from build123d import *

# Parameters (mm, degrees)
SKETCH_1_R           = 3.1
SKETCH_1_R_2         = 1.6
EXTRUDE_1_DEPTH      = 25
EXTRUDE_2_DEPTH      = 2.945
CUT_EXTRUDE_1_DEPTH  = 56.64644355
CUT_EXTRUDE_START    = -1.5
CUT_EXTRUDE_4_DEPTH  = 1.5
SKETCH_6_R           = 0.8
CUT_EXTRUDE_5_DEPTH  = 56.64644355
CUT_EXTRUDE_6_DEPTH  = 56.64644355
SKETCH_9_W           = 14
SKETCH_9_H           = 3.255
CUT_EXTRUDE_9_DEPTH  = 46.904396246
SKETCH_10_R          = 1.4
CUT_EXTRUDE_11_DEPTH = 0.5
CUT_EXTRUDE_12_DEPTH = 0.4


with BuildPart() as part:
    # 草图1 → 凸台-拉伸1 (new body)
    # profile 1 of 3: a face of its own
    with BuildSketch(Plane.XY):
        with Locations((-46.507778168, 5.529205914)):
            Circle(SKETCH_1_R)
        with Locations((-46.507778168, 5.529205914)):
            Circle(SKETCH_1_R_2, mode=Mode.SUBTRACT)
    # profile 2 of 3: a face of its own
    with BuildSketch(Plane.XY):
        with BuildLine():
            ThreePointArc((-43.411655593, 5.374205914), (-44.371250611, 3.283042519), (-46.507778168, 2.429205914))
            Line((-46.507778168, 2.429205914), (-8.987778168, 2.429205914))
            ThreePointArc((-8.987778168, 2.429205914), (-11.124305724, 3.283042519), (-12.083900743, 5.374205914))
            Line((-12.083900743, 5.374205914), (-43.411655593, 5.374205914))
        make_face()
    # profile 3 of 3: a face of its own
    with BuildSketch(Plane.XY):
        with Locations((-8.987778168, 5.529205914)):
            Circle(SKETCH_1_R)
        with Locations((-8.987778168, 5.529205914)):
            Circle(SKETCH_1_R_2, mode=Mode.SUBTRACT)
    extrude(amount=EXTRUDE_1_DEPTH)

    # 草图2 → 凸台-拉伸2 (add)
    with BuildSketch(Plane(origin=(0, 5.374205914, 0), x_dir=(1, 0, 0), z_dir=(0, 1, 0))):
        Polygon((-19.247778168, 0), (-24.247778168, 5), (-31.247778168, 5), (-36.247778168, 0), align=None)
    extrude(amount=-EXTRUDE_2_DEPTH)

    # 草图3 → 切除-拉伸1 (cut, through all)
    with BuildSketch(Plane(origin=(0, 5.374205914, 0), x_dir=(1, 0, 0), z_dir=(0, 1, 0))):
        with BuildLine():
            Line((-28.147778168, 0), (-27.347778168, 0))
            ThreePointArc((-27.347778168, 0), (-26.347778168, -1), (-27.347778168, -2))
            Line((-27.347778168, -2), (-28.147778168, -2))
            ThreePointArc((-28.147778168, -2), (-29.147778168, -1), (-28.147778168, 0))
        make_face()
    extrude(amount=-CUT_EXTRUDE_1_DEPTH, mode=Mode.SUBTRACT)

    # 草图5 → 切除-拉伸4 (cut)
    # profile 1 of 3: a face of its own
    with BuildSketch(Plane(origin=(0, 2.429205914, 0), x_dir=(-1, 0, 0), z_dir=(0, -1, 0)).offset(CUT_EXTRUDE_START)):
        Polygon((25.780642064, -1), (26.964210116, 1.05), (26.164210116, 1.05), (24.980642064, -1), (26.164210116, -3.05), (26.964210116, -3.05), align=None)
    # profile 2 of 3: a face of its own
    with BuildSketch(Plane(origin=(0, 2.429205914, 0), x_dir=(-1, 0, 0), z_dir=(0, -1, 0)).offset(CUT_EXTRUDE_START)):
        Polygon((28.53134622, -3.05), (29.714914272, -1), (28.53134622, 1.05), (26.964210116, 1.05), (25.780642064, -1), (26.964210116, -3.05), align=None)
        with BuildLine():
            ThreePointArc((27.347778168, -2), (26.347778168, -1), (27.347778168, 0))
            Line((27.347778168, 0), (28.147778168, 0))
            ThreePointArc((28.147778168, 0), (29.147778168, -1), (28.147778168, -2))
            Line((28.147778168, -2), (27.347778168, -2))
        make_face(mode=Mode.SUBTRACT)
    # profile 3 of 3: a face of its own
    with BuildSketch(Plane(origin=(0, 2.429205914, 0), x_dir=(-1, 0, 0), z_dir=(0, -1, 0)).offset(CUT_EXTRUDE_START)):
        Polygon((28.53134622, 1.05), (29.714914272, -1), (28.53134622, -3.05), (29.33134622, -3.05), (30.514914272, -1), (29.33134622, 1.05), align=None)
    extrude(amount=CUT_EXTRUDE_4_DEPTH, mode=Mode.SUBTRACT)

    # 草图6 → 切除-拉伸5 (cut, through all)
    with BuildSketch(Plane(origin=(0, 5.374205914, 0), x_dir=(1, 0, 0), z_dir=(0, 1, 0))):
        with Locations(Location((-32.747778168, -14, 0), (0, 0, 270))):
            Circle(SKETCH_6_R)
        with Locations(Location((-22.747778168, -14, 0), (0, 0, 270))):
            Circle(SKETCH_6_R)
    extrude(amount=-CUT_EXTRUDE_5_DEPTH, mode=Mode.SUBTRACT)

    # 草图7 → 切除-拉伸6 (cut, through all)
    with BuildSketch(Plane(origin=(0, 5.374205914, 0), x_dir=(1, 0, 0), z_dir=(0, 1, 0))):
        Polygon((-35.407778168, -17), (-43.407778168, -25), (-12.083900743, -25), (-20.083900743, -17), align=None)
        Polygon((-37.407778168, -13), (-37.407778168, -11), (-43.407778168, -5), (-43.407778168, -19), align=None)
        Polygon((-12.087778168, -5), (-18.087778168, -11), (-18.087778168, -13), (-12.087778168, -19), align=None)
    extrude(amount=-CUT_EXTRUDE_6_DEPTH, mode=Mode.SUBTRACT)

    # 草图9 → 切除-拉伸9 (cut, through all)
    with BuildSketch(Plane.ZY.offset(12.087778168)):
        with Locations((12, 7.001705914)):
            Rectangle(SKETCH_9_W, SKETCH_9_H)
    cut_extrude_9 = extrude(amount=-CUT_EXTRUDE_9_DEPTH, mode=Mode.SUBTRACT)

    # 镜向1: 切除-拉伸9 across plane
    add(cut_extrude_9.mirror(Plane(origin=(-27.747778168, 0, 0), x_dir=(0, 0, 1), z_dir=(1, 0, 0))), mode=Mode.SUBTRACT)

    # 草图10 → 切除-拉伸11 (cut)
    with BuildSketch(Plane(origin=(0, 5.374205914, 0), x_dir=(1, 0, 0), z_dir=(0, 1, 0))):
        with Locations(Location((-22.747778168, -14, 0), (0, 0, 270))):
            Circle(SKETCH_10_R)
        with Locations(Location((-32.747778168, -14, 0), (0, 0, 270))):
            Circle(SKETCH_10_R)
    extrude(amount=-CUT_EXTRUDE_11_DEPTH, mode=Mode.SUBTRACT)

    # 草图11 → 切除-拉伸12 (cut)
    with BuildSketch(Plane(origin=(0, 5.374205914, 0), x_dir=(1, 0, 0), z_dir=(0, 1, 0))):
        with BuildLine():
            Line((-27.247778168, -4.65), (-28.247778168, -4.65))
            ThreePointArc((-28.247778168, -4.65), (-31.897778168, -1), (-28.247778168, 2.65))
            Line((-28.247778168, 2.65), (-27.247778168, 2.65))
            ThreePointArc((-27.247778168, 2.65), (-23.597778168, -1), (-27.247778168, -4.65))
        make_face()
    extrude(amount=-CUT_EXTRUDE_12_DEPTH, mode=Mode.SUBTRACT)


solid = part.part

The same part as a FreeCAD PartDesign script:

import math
import FreeCAD as App
import Part
import Sketcher
from FreeCAD import Vector
Q = App.Units.Quantity


def add_polygon(sketch, points):
    """Adds a closed chain of lines whose ends are joined by coincident constraints."""
    first, n = sketch.GeometryCount, len(points)
    for a, b in zip(points, points[1:] + points[:1]):
        sketch.addGeometry(Part.LineSegment(App.Vector(*a, 0), App.Vector(*b, 0)), False)
    for i in range(n):
        sketch.addConstraint(Sketcher.Constraint("Coincident", first + i, 2, first + (i + 1) % n, 1))

doc = App.newDocument("Part")
params = doc.addObject("Spreadsheet::Sheet", "Params")
for row, (alias, value) in enumerate([
    ("sketch1_diameter", "3.2 mm"),
    ("sketch1_radius", "3.1 mm"),
    ("sketch1_width", "37.52 mm"),
    ("pad1_length", "25 mm"),
    ("sketch2_width", "7 mm"),
    ("sketch2_width2", "17 mm"),
    ("pad2_length", "2.945 mm"),
    ("sketch3_radius", "1 mm"),
    ("sketch3_width", "0.8 mm"),
    ("sketch4_radius", "1 mm"),
    ("sketch4_width", "0.8 mm"),
    ("pocket2_length", "1.5 mm"),
    ("sketch5_diameter", "1.6 mm"),
    ("sketch6_height", "2 mm"),
    ("sketch6_height2", "14 mm"),
    ("sketch7_height", "14 mm"),
    ("sketch8_diameter", "2.8 mm"),
    ("pocket6_length", "0.5 mm"),
    ("sketch9_width", "1 mm"),
    ("sketch9_radius", "3.65 mm"),
    ("pocket7_length", "0.4 mm"),
], start=1):
    params.set(f"A{row}", alias)
    params.set(f"B{row}", "=" + value)
    params.setAlias(f"B{row}", alias)

body = doc.addObject("PartDesign::Body", "Body")

sketch1 = body.newObject("Sketcher::SketchObject", "Sketch")
sketch1.AttachmentSupport = (doc.getObject("XY_Plane"), [""])
sketch1.MapMode = "FlatFace"
sketch1.addGeometry(Part.LineSegment(Vector(-46.5, 2.4, 0), Vector(-9, 2.4, 0)), False)
sketch1.addGeometry(Part.ArcOfCircle(Part.Circle(Vector(-9, 5.5, 0), Vector(0, 0, 1), 3.1), math.radians(-90), math.radians(183)), False)
sketch1.addGeometry(Part.LineSegment(Vector(-12.1, 5.4, 0), Vector(-43.4, 5.4, 0)), False)
sketch1.addGeometry(Part.ArcOfCircle(Part.Circle(Vector(-46.5, 5.5, 0), Vector(0, 0, 1), 3.1), math.radians(-3), math.radians(270)), False)
sketch1.addGeometry(Part.Circle(Vector(-46.5, 5.5, 0), Vector(0, 0, 1), 1.6), False)
sketch1.addGeometry(Part.Circle(Vector(-9, 5.5, 0), Vector(0, 0, 1), 1.6), False)
sketch1.addConstraint(Sketcher.Constraint("Tangent", 0, 2, 1, 1))
sketch1.addConstraint(Sketcher.Constraint("Coincident", 1, 2, 2, 1))
sketch1.addConstraint(Sketcher.Constraint("Coincident", 2, 2, 3, 1))
sketch1.addConstraint(Sketcher.Constraint("Tangent", 3, 2, 0, 1))
sketch1.addConstraint(Sketcher.Constraint("Horizontal", 0))
sketch1.addConstraint(Sketcher.Constraint("Horizontal", 2))
sketch1.addConstraint(Sketcher.Constraint("Coincident", 4, 3, 3, 3))
sketch1.addConstraint(Sketcher.Constraint("Coincident", 5, 3, 1, 3))
sketch1.addConstraint(Sketcher.Constraint("Equal", 1, 3))
sketch1.addConstraint(Sketcher.Constraint("Equal", 4, 5))
sketch1.addConstraint(Sketcher.Constraint("Diameter", 4, Q("3.2 mm")))
sketch1.addConstraint(Sketcher.Constraint("Radius", 1, Q("3.1 mm")))
sketch1.addConstraint(Sketcher.Constraint("DistanceX", 0, 1, 0, 2, Q("37.52 mm")))
sketch1.addConstraint(Sketcher.Constraint("DistanceY", 1, 2, 1, 3, Q("0.155 mm")))
sketch1.addConstraint(Sketcher.Constraint("DistanceX", 1, 2, -1, 1, Q("12.083901 mm")))
sketch1.addConstraint(Sketcher.Constraint("DistanceY", -1, 1, 1, 3, Q("5.529206 mm")))
sketch1.setExpression("Constraints[10]", "Params.sketch1_diameter")
sketch1.setExpression("Constraints[11]", "Params.sketch1_radius")
sketch1.setExpression("Constraints[12]", "Params.sketch1_width")
pad1 = body.newObject("PartDesign::Pad", "Pad")
pad1.Profile = sketch1
pad1.setExpression("Length", "Params.pad1_length")

sketch2 = body.newObject("Sketcher::SketchObject", "Sketch001")
sketch2.AttachmentSupport = (doc.getObject("XZ_Plane"), [""])
sketch2.MapMode = "FlatFace"
sketch2.AttachmentOffset = App.Placement(Vector(0, 0, -5.374206), App.Rotation())
add_polygon(sketch2, [(-19, 0), (-24, -5), (-31, -5), (-36, 0)])
sketch2.addConstraint(Sketcher.Constraint("Horizontal", 1))
sketch2.addConstraint(Sketcher.Constraint("Horizontal", 3))
sketch2.addConstraint(Sketcher.Constraint("PointOnObject", 2, 2, -1))
sketch2.addConstraint(Sketcher.Constraint("Perpendicular", 0, 2))
sketch2.addConstraint(Sketcher.Constraint("Equal", 0, 2))
sketch2.addConstraint(Sketcher.Constraint("DistanceX", 1, 2, 1, 1, Q("7 mm")))
sketch2.addConstraint(Sketcher.Constraint("DistanceX", 3, 1, 3, 2, Q("17 mm")))
sketch2.addConstraint(Sketcher.Constraint("DistanceX", 0, 2, -1, 1, Q("24.247778 mm")))
sketch2.setExpression("Constraints[9]", "Params.sketch2_width")
sketch2.setExpression("Constraints[10]", "Params.sketch2_width2")
pad2 = body.newObject("PartDesign::Pad", "Pad001")
pad2.Profile = sketch2
pad2.setExpression("Length", "Params.pad2_length")

sketch3 = body.newObject("Sketcher::SketchObject", "Sketch002")
sketch3.AttachmentSupport = (doc.getObject("XZ_Plane"), [""])
sketch3.MapMode = "FlatFace"
sketch3.AttachmentOffset = App.Placement(Vector(0, 0, -5.374206), App.Rotation())
sketch3.addGeometry(Part.LineSegment(Vector(-27.3, 0, 0), Vector(-28.1, 0, 0)), False)
sketch3.addGeometry(Part.ArcOfCircle(Part.Circle(Vector(-28.1, 1, 0), Vector(0, 0, 1), 1), math.radians(90), math.radians(270)), False)
sketch3.addGeometry(Part.LineSegment(Vector(-28.1, 2, 0), Vector(-27.3, 2, 0)), False)
sketch3.addGeometry(Part.ArcOfCircle(Part.Circle(Vector(-27.3, 1, 0), Vector(0, 0, 1), 1), math.radians(-90), math.radians(90)), False)
sketch3.addConstraint(Sketcher.Constraint("Tangent", 0, 2, 1, 2))
sketch3.addConstraint(Sketcher.Constraint("Tangent", 1, 1, 2, 1))
sketch3.addConstraint(Sketcher.Constraint("Tangent", 2, 2, 3, 2))
sketch3.addConstraint(Sketcher.Constraint("Tangent", 3, 1, 0, 1))
sketch3.addConstraint(Sketcher.Constraint("Horizontal", 0))
sketch3.addConstraint(Sketcher.Constraint("Horizontal", 2))
sketch3.addConstraint(Sketcher.Constraint("PointOnObject", 0, 2, -1))
sketch3.addConstraint(Sketcher.Constraint("Radius", 1, Q("1 mm")))
sketch3.addConstraint(Sketcher.Constraint("DistanceX", 0, 2, 0, 1, Q("0.8 mm")))
sketch3.addConstraint(Sketcher.Constraint("DistanceX", 1, 3, -1, 1, Q("28.147778 mm")))
sketch3.setExpression("Constraints[7]", "Params.sketch3_radius")
sketch3.setExpression("Constraints[8]", "Params.sketch3_width")
pocket1 = body.newObject("PartDesign::Pocket", "Pocket")
pocket1.Profile = sketch3
pocket1.Type = "ThroughAll"
pocket1.Reversed = True

sketch4 = body.newObject("Sketcher::SketchObject", "Sketch003")
sketch4.AttachmentSupport = (doc.getObject("XZ_Plane"), [""])
sketch4.MapMode = "FlatFace"
sketch4.AttachmentOffset = App.Placement(Vector(0, 0, -3.929206), App.Rotation())
add_polygon(sketch4, [(-26.2, -1.1), (-25, 1), (-26.2, 3), (-29.3, 3), (-30.5, 1), (-29.3, -1.1)])
sketch4.addGeometry(Part.LineSegment(Vector(-27.3, 0, 0), Vector(-28.1, 0, 0)), False)
sketch4.addGeometry(Part.ArcOfCircle(Part.Circle(Vector(-28.1, 1, 0), Vector(0, 0, 1), 1), math.radians(90), math.radians(270)), False)
sketch4.addGeometry(Part.LineSegment(Vector(-28.1, 2, 0), Vector(-27.3, 2, 0)), False)
sketch4.addGeometry(Part.ArcOfCircle(Part.Circle(Vector(-27.3, 1, 0), Vector(0, 0, 1), 1), math.radians(-90), math.radians(90)), False)
sketch4.addConstraint(Sketcher.Constraint("Tangent", 6, 2, 7, 2))
sketch4.addConstraint(Sketcher.Constraint("Tangent", 7, 1, 8, 1))
sketch4.addConstraint(Sketcher.Constraint("Tangent", 8, 2, 9, 2))
sketch4.addConstraint(Sketcher.Constraint("Tangent", 9, 1, 6, 1))
sketch4.addConstraint(Sketcher.Constraint("Horizontal", 2))
sketch4.addConstraint(Sketcher.Constraint("Horizontal", 5))
sketch4.addConstraint(Sketcher.Constraint("Horizontal", 6))
sketch4.addConstraint(Sketcher.Constraint("Horizontal", 8))
sketch4.addConstraint(Sketcher.Constraint("PointOnObject", 6, 2, -1))
sketch4.addConstraint(Sketcher.Constraint("Parallel", 0, 3))
sketch4.addConstraint(Sketcher.Constraint("Parallel", 1, 4))
sketch4.addConstraint(Sketcher.Constraint("Horizontal", 9, 3, 0, 2))
sketch4.addConstraint(Sketcher.Constraint("Horizontal", 0, 2, 3, 2))
sketch4.addConstraint(Sketcher.Constraint("Vertical", 2, 2, 4, 2))
sketch4.addConstraint(Sketcher.Constraint("Vertical", 1, 2, 5, 2))
sketch4.addConstraint(Sketcher.Constraint("Radius", 7, Q("1 mm")))
sketch4.addConstraint(Sketcher.Constraint("Angle", 0, Q("60 deg")))
sketch4.addConstraint(Sketcher.Constraint("DistanceX", 6, 2, 6, 1, Q("0.8 mm")))
sketch4.addConstraint(Sketcher.Constraint("DistanceY", 4, 2, 2, 2, Q("4.1 mm")))
sketch4.addConstraint(Sketcher.Constraint("DistanceX", 2, 2, 2, 1, Q("3.167136 mm")))
sketch4.addConstraint(Sketcher.Constraint("DistanceX", 7, 3, -1, 1, Q("28.147778 mm")))
sketch4.addConstraint(Sketcher.Constraint("DistanceX", 1, 2, -1, 1, Q("26.16421 mm")))
sketch4.setExpression("Constraints[21]", "Params.sketch4_radius")
sketch4.setExpression("Constraints[23]", "Params.sketch4_width")
pocket2 = body.newObject("PartDesign::Pocket", "Pocket001")
pocket2.Profile = sketch4
pocket2.setExpression("Length", "Params.pocket2_length")
pocket2.Reversed = True

sketch5 = body.newObject("Sketcher::SketchObject", "Sketch004")
sketch5.AttachmentSupport = (doc.getObject("XZ_Plane"), [""])
sketch5.MapMode = "FlatFace"
sketch5.AttachmentOffset = App.Placement(Vector(0, 0, -5.374206), App.Rotation())
sketch5.addGeometry(Part.Circle(Vector(-32.7, 14, 0), Vector(0, 0, 1), 0.8), False)
sketch5.addGeometry(Part.Circle(Vector(-22.7, 14, 0), Vector(0, 0, 1), 0.8), False)
sketch5.addConstraint(Sketcher.Constraint("Equal", 0, 1))
sketch5.addConstraint(Sketcher.Constraint("Horizontal", 0, 3, 1, 3))
sketch5.addConstraint(Sketcher.Constraint("Diameter", 0, Q("1.6 mm")))
sketch5.addConstraint(Sketcher.Constraint("DistanceY", -1, 1, 0, 3, Q("14 mm")))
sketch5.addConstraint(Sketcher.Constraint("DistanceX", 0, 3, 1, 3, Q("10 mm")))
sketch5.addConstraint(Sketcher.Constraint("DistanceX", 0, 3, -1, 1, Q("32.747778 mm")))
sketch5.setExpression("Constraints[2]", "Params.sketch5_diameter")
pocket3 = body.newObject("PartDesign::Pocket", "Pocket002")
pocket3.Profile = sketch5
pocket3.Type = "ThroughAll"
pocket3.Reversed = True

sketch6 = body.newObject("Sketcher::SketchObject", "Sketch005")
sketch6.AttachmentSupport = (doc.getObject("XZ_Plane"), [""])
sketch6.MapMode = "FlatFace"
sketch6.AttachmentOffset = App.Placement(Vector(0, 0, -5.374206), App.Rotation())
add_polygon(sketch6, [(-35.4, 17), (-43.4, 25), (-12.1, 25), (-20.1, 17)])
add_polygon(sketch6, [(-37.4, 13), (-37.4, 11), (-43.4, 5), (-43.4, 19)])
add_polygon(sketch6, [(-12.1, 5), (-18.1, 11), (-18.1, 13), (-12.1, 19)])
sketch6.addConstraint(Sketcher.Constraint("Horizontal", 1))
sketch6.addConstraint(Sketcher.Constraint("Horizontal", 3))
sketch6.addConstraint(Sketcher.Constraint("Vertical", 4))
sketch6.addConstraint(Sketcher.Constraint("Vertical", 6))
sketch6.addConstraint(Sketcher.Constraint("Vertical", 9))
sketch6.addConstraint(Sketcher.Constraint("Vertical", 11))
sketch6.addConstraint(Sketcher.Constraint("Perpendicular", 0, 2))
sketch6.addConstraint(Sketcher.Constraint("Parallel", 2, 5))
sketch6.addConstraint(Sketcher.Constraint("Perpendicular", 5, 7))
sketch6.addConstraint(Sketcher.Constraint("Parallel", 7, 8))
sketch6.addConstraint(Sketcher.Constraint("Perpendicular", 8, 10))
sketch6.addConstraint(Sketcher.Constraint("Horizontal", 4, 2, 8, 2))
sketch6.addConstraint(Sketcher.Constraint("Horizontal", 7, 2, 9, 2))
sketch6.addConstraint(Sketcher.Constraint("Horizontal", 6, 2, 10, 2))
sketch6.addConstraint(Sketcher.Constraint("Horizontal", 5, 2, 11, 2))
sketch6.addConstraint(Sketcher.Constraint("Vertical", 0, 2, 5, 2))
sketch6.addConstraint(Sketcher.Constraint("DistanceY", 4, 2, 4, 1, Q("2 mm")))
sketch6.addConstraint(Sketcher.Constraint("DistanceY", 6, 1, 6, 2, Q("14 mm")))
sketch6.addConstraint(Sketcher.Constraint("DistanceY", -1, 1, 0, 2, Q("25 mm")))
sketch6.addConstraint(Sketcher.Constraint("DistanceY", -1, 1, 2, 2, Q("17 mm")))
sketch6.addConstraint(Sketcher.Constraint("DistanceY", -1, 1, 4, 2, Q("11 mm")))
sketch6.addConstraint(Sketcher.Constraint("DistanceX", 3, 2, 8, 2, Q("17.32 mm")))
sketch6.addConstraint(Sketcher.Constraint("DistanceX", 1, 2, -1, 1, Q("12.083901 mm")))
sketch6.addConstraint(Sketcher.Constraint("DistanceX", 1, 1, 1, 2, Q("31.323877 mm")))
sketch6.setExpression("Constraints[28]", "Params.sketch6_height")
sketch6.setExpression("Constraints[29]", "Params.sketch6_height2")
pocket4 = body.newObject("PartDesign::Pocket", "Pocket003")
pocket4.Profile = sketch6
pocket4.Type = "ThroughAll"
pocket4.Reversed = True

sketch7 = body.newObject("Sketcher::SketchObject", "Sketch006")
sketch7.AttachmentSupport = (doc.getObject("YZ_Plane"), [""])
sketch7.MapMode = "FlatFace"
sketch7.AttachmentOffset = App.Placement(Vector(0, 0, -12.087778), App.Rotation())
add_polygon(sketch7, [(8.6, 5), (5.4, 5), (5.4, 19), (8.6, 19)])
sketch7.addConstraint(Sketcher.Constraint("Horizontal", 0))
sketch7.addConstraint(Sketcher.Constraint("Vertical", 1))
sketch7.addConstraint(Sketcher.Constraint("Horizontal", 2))
sketch7.addConstraint(Sketcher.Constraint("Vertical", 3))
sketch7.addConstraint(Sketcher.Constraint("DistanceY", 1, 1, 1, 2, Q("14 mm")))
sketch7.addConstraint(Sketcher.Constraint("DistanceY", -1, 1, 0, 2, Q("5 mm")))
sketch7.addConstraint(Sketcher.Constraint("DistanceX", 0, 2, 0, 1, Q("3.255 mm")))
sketch7.addConstraint(Sketcher.Constraint("DistanceX", -1, 1, 0, 2, Q("5.374206 mm")))
sketch7.setExpression("Constraints[8]", "Params.sketch7_height")
pocket5 = body.newObject("PartDesign::Pocket", "Pocket004")
pocket5.Profile = sketch7
pocket5.Type = "ThroughAll"
pocket5.Reversed = True
doc.recompute()

datumplane = body.newObject("PartDesign::Plane", "DatumPlane")
datumplane.AttachmentSupport = (doc.getObject("YZ_Plane"), [""])
datumplane.MapMode = "FlatFace"
datumplane.AttachmentOffset = App.Placement(Vector(0, 0, -27.747778), App.Rotation())
mirrored = body.newObject("PartDesign::Mirrored", "Mirrored")
mirrored.Originals = [pocket5]
mirrored.MirrorPlane = (datumplane, [""])
body.Tip = mirrored

sketch8 = body.newObject("Sketcher::SketchObject", "Sketch007")
sketch8.AttachmentSupport = (doc.getObject("XZ_Plane"), [""])
sketch8.MapMode = "FlatFace"
sketch8.AttachmentOffset = App.Placement(Vector(0, 0, -5.374206), App.Rotation())
sketch8.addGeometry(Part.Circle(Vector(-22.7, 14, 0), Vector(0, 0, 1), 1.4), False)
sketch8.addGeometry(Part.Circle(Vector(-32.7, 14, 0), Vector(0, 0, 1), 1.4), False)
sketch8.addConstraint(Sketcher.Constraint("Equal", 0, 1))
sketch8.addConstraint(Sketcher.Constraint("Horizontal", 0, 3, 1, 3))
sketch8.addConstraint(Sketcher.Constraint("Diameter", 0, Q("2.8 mm")))
sketch8.addConstraint(Sketcher.Constraint("DistanceY", -1, 1, 0, 3, Q("14 mm")))
sketch8.addConstraint(Sketcher.Constraint("DistanceX", 1, 3, 0, 3, Q("10 mm")))
sketch8.addConstraint(Sketcher.Constraint("DistanceX", 0, 3, -1, 1, Q("22.747778 mm")))
sketch8.setExpression("Constraints[2]", "Params.sketch8_diameter")
pocket6 = body.newObject("PartDesign::Pocket", "Pocket005")
pocket6.Profile = sketch8
pocket6.setExpression("Length", "Params.pocket6_length")
pocket6.Reversed = True

sketch9 = body.newObject("Sketcher::SketchObject", "Sketch008")
sketch9.AttachmentSupport = (doc.getObject("XZ_Plane"), [""])
sketch9.MapMode = "FlatFace"
sketch9.AttachmentOffset = App.Placement(Vector(0, 0, -5.374206), App.Rotation())
sketch9.addGeometry(Part.LineSegment(Vector(-28.2, 4.7, 0), Vector(-27.2, 4.7, 0)), False)
sketch9.addGeometry(Part.ArcOfCircle(Part.Circle(Vector(-27.2, 1, 0), Vector(0, 0, 1), 3.6), math.radians(-90), math.radians(90)), False)
sketch9.addGeometry(Part.LineSegment(Vector(-27.2, -2.6, 0), Vector(-28.2, -2.6, 0)), False)
sketch9.addGeometry(Part.ArcOfCircle(Part.Circle(Vector(-28.2, 1, 0), Vector(0, 0, 1), 3.6), math.radians(90), math.radians(270)), False)
sketch9.addConstraint(Sketcher.Constraint("Tangent", 0, 2, 1, 2))
sketch9.addConstraint(Sketcher.Constraint("Tangent", 1, 1, 2, 1))
sketch9.addConstraint(Sketcher.Constraint("Tangent", 2, 2, 3, 2))
sketch9.addConstraint(Sketcher.Constraint("Tangent", 3, 1, 0, 1))
sketch9.addConstraint(Sketcher.Constraint("Horizontal", 0))
sketch9.addConstraint(Sketcher.Constraint("Horizontal", 2))
sketch9.addConstraint(Sketcher.Constraint("DistanceX", 0, 1, 0, 2, Q("1 mm")))
sketch9.addConstraint(Sketcher.Constraint("Radius", 1, Q("3.65 mm")))
sketch9.addConstraint(Sketcher.Constraint("DistanceY", -1, 1, 1, 3, Q("1 mm")))
sketch9.addConstraint(Sketcher.Constraint("DistanceX", 1, 3, -1, 1, Q("27.247778 mm")))
sketch9.setExpression("Constraints[6]", "Params.sketch9_width")
sketch9.setExpression("Constraints[7]", "Params.sketch9_radius")
pocket7 = body.newObject("PartDesign::Pocket", "Pocket006")
pocket7.Profile = sketch9
pocket7.setExpression("Length", "Params.pocket7_length")
pocket7.Reversed = True

doc.recompute()
